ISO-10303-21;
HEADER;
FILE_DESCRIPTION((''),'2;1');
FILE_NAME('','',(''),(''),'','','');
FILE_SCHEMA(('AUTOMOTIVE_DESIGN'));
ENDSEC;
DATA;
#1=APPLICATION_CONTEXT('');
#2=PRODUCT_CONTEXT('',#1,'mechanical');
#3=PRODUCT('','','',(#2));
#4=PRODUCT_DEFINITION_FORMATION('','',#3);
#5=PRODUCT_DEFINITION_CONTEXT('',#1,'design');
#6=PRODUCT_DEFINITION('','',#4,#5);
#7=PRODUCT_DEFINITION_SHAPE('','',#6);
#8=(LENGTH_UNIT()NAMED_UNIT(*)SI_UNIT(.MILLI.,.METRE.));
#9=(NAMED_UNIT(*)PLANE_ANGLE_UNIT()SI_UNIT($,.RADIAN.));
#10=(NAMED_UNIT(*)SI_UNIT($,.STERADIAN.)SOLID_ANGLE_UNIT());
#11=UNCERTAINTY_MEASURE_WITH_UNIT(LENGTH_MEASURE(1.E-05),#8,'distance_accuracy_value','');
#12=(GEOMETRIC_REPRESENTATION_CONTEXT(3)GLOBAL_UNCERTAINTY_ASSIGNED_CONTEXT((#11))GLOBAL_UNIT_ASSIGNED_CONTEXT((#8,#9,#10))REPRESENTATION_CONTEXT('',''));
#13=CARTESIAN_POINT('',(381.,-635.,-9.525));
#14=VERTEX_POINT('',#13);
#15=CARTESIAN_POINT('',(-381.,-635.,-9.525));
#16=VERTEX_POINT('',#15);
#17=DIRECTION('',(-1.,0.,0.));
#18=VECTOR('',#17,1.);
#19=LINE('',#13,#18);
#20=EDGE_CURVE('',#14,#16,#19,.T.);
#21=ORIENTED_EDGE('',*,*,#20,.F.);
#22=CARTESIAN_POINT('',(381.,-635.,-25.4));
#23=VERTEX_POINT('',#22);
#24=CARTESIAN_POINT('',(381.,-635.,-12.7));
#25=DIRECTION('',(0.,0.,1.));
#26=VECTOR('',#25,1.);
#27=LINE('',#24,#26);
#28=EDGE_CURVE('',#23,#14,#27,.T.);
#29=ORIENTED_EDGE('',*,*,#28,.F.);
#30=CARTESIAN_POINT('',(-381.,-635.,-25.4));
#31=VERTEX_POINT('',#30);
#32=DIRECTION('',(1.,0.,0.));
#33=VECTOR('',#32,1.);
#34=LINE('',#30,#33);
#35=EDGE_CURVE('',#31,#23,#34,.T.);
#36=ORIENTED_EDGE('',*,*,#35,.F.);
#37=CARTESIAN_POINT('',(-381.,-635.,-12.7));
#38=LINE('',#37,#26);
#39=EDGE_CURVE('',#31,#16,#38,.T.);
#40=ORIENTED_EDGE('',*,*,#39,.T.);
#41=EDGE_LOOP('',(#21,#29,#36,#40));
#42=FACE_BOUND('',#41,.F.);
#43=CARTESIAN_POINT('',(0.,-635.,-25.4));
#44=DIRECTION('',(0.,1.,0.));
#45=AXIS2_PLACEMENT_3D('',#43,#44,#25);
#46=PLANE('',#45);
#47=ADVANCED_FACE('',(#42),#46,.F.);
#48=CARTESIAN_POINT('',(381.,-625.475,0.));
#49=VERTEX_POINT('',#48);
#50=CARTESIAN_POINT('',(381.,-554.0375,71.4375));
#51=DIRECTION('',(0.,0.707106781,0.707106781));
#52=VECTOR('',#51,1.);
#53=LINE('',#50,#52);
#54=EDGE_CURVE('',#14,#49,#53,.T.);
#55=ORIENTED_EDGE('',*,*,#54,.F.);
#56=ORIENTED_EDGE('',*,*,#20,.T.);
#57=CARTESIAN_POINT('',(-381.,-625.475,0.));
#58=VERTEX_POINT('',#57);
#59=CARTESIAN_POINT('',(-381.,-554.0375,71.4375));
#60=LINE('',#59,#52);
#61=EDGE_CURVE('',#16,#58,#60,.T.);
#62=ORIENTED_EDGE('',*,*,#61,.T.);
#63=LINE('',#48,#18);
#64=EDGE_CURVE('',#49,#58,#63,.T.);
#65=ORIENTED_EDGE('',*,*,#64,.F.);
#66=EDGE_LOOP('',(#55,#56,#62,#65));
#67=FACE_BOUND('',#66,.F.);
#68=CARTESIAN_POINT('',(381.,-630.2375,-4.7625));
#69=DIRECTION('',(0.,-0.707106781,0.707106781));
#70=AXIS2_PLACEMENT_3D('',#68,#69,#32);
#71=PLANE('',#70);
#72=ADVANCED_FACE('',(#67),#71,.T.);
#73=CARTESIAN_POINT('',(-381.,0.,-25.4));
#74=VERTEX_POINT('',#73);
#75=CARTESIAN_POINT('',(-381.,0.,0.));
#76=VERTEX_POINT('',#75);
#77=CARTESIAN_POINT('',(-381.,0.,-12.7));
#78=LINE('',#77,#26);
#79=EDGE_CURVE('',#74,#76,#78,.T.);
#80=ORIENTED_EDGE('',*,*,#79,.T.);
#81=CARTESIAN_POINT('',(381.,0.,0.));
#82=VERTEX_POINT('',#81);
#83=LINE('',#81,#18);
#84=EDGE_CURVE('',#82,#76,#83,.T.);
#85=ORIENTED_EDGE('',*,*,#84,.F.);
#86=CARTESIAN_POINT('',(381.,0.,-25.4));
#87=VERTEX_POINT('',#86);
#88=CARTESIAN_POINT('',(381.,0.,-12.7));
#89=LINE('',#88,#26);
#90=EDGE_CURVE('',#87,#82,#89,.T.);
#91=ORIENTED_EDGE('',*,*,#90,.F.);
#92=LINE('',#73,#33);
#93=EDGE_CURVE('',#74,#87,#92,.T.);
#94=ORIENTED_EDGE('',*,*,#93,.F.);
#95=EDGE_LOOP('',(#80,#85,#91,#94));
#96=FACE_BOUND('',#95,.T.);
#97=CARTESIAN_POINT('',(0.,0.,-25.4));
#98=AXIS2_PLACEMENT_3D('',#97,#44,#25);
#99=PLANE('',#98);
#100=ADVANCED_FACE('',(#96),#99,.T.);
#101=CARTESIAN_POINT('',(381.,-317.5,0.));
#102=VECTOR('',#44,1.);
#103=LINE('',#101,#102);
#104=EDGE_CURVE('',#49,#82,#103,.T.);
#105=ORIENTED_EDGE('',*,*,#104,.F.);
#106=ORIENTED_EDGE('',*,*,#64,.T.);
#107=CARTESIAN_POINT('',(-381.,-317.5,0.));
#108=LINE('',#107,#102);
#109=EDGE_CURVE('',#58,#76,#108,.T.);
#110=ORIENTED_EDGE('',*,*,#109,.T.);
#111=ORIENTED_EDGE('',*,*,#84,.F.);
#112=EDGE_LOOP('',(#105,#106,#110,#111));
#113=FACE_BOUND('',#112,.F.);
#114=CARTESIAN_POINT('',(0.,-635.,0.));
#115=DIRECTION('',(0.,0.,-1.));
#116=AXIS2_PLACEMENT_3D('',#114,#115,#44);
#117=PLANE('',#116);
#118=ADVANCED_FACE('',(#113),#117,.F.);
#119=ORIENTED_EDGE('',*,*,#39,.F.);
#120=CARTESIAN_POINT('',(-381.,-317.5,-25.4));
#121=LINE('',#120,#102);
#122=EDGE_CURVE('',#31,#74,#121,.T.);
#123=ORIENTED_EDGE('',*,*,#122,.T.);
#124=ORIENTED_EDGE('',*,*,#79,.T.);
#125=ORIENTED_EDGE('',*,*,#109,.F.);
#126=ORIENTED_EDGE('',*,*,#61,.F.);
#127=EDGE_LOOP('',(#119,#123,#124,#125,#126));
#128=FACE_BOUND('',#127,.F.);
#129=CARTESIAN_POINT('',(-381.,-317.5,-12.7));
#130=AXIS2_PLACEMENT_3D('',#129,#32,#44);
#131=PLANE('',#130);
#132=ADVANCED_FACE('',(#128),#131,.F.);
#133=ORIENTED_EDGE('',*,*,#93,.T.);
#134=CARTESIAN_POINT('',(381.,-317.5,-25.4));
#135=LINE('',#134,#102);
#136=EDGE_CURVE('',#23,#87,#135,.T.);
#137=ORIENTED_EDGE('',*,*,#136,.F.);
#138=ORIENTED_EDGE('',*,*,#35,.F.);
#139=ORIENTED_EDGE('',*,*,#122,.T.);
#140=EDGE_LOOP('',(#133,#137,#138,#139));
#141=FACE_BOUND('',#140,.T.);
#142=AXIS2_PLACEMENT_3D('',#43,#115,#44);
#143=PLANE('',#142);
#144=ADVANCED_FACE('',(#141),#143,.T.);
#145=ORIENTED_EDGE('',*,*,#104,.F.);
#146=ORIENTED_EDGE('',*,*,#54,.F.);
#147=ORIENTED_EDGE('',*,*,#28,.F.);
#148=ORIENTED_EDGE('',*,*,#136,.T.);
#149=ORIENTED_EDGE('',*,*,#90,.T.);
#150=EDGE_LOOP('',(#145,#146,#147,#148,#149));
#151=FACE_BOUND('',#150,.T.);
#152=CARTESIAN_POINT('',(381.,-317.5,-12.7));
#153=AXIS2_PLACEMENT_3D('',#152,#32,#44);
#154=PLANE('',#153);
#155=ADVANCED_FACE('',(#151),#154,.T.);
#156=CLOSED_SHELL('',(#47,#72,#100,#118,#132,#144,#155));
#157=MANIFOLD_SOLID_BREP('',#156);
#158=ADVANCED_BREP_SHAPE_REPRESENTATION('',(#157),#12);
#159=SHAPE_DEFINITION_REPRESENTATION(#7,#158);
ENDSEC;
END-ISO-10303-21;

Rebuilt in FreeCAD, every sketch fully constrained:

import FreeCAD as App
import Part
import Sketcher
from FreeCAD import Vector
Q = App.Units.Quantity


def edges_at(feature, points):
    """Names of the edges that pass closest to the given points."""
    edges = feature.Shape.Edges
    near = lambda p: min(range(len(edges)), key=lambda i: edges[i].distToShape(Part.Vertex(*p))[0])
    return sorted({f"Edge{near(p) + 1}" for p in points})


def add_polygon(sketch, points):
    """Adds a closed chain of lines whose ends are joined by coincident constraints."""
    first, n = sketch.GeometryCount, len(points)
    for a, b in zip(points, points[1:] + points[:1]):
        sketch.addGeometry(Part.LineSegment(App.Vector(*a, 0), App.Vector(*b, 0)), False)
    for i in range(n):
        sketch.addConstraint(Sketcher.Constraint("Coincident", first + i, 2, first + (i + 1) % n, 1))

doc = App.newDocument("Part")
body = doc.addObject("PartDesign::Body", "Body")

sketch1 = doc.addObject("Sketcher::SketchObject", "Sketch")
body.addObject(sketch1)
sketch1.AttachmentSupport = (doc.YZ_Plane, [""])
sketch1.MapMode = "FlatFace"
add_polygon(sketch1, [(-635, 0), (-635, -25), (0, -25), (0, 0)])
sketch1.addConstraint([
    Sketcher.Constraint("Vertical", 0),
    Sketcher.Constraint("Horizontal", 1),
    Sketcher.Constraint("Vertical", 2),
    Sketcher.Constraint("Horizontal", 3),
    Sketcher.Constraint("Coincident", 2, 2, -1, 1),
    Sketcher.Constraint("DistanceX", 1, 1, 1, 2, Q("25 in")),
    Sketcher.Constraint("DistanceY", 0, 2, 0, 1, Q("1 in")),
])
pad1 = doc.addObject("PartDesign::Pad", "Pad")
body.addObject(pad1)
pad1.Profile = sketch1
pad1.Length = Q("30 in")
pad1.Midplane = True
doc.recompute()

chamfer = doc.addObject("PartDesign::Chamfer", "Chamfer")
body.addObject(chamfer)
chamfer.Base = (pad1, edges_at(pad1, [(0, -635, 0)]))
chamfer.Size = Q("0.375 in")

doc.recompute()
